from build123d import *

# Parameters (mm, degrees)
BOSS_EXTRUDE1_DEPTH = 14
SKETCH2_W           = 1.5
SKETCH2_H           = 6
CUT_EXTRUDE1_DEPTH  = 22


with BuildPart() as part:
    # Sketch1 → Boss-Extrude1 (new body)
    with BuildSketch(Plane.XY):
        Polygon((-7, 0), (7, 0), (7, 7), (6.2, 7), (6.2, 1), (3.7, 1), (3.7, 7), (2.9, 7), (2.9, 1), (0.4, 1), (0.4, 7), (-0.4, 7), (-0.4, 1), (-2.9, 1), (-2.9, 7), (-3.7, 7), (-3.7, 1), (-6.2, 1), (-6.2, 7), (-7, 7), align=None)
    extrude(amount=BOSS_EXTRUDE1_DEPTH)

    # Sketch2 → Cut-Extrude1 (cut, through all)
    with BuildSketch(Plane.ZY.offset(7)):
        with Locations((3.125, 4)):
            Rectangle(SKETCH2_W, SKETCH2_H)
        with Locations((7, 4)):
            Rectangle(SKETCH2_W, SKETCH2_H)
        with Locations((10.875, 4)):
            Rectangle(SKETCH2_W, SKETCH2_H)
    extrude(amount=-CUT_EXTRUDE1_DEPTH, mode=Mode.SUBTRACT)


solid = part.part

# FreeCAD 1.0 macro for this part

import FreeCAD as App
import Part
import Sketcher
from FreeCAD import Vector

doc = App.newDocument("Part")
params = doc.addObject("Spreadsheet::Sheet", "Params")
for row, (alias, value) in enumerate([
    ("sketch1_width", "14 mm"),
    ("sketch1_height", "7 mm"),
    ("sketch1_height2", "6 mm"),
    ("sketch1_width2", "0.8 mm"),
    ("pad1_length", "14 mm"),
    ("sketch2_width", "6 mm"),
    ("sketch2_height", "1.5 mm"),
], start=1):
    params.set(f"A{row}", alias)
    params.set(f"B{row}", "=" + value)
    params.setAlias(f"B{row}", alias)

body = doc.addObject("PartDesign::Body", "Body")

sketch1 = body.newObject("Sketcher::SketchObject", "Sketch")
sketch1.AttachmentSupport = (doc.getObject("XY_Plane"), [""])
sketch1.MapMode = "FlatFace"
sketch1.addGeometry([
    Part.LineSegment(Vector(-7, 0, 0), Vector(7, 0, 0)),
    Part.LineSegment(Vector(7, 0, 0), Vector(7, 7, 0)),
    Part.LineSegment(Vector(7, 7, 0), Vector(6.2, 7, 0)),
    Part.LineSegment(Vector(6.2, 7, 0), Vector(6.2, 1, 0)),
    Part.LineSegment(Vector(6.2, 1, 0), Vector(3.7, 1, 0)),
    Part.LineSegment(Vector(3.7, 1, 0), Vector(3.7, 7, 0)),
    Part.LineSegment(Vector(3.7, 7, 0), Vector(2.9, 7, 0)),
    Part.LineSegment(Vector(2.9, 7, 0), Vector(2.9, 1, 0)),
    Part.LineSegment(Vector(2.9, 1, 0), Vector(0.4, 1, 0)),
    Part.LineSegment(Vector(0.4, 1, 0), Vector(0.4, 7, 0)),
    Part.LineSegment(Vector(0.4, 7, 0), Vector(-0.4, 7, 0)),
    Part.LineSegment(Vector(-0.4, 7, 0), Vector(-0.4, 1, 0)),
    Part.LineSegment(Vector(-0.4, 1, 0), Vector(-2.9, 1, 0)),
    Part.LineSegment(Vector(-2.9, 1, 0), Vector(-2.9, 7, 0)),
    Part.LineSegment(Vector(-2.9, 7, 0), Vector(-3.7, 7, 0)),
    Part.LineSegment(Vector(-3.7, 7, 0), Vector(-3.7, 1, 0)),
    Part.LineSegment(Vector(-3.7, 1, 0), Vector(-6.2, 1, 0)),
    Part.LineSegment(Vector(-6.2, 1, 0), Vector(-6.2, 7, 0)),
    Part.LineSegment(Vector(-6.2, 7, 0), Vector(-7, 7, 0)),
    Part.LineSegment(Vector(-7, 7, 0), Vector(-7, 0, 0)),
], False)
sketch1.addConstraint([
    Sketcher.Constraint("Coincident", 0, 2, 1, 1),
    Sketcher.Constraint("Coincident", 1, 2, 2, 1),
    Sketcher.Constraint("Coincident", 2, 2, 3, 1),
    Sketcher.Constraint("Coincident", 3, 2, 4, 1),
    Sketcher.Constraint("Coincident", 4, 2, 5, 1),
    Sketcher.Constraint("Coincident", 5, 2, 6, 1),
    Sketcher.Constraint("Coincident", 6, 2, 7, 1),
    Sketcher.Constraint("Coincident", 7, 2, 8, 1),
    Sketcher.Constraint("Coincident", 8, 2, 9, 1),
    Sketcher.Constraint("Coincident", 9, 2, 10, 1),
    Sketcher.Constraint("Coincident", 10, 2, 11, 1),
    Sketcher.Constraint("Coincident", 11, 2, 12, 1),
    Sketcher.Constraint("Coincident", 12, 2, 13, 1),
    Sketcher.Constraint("Coincident", 13, 2, 14, 1),
    Sketcher.Constraint("Coincident", 14, 2, 15, 1),
    Sketcher.Constraint("Coincident", 15, 2, 16, 1),
    Sketcher.Constraint("Coincident", 16, 2, 17, 1),
    Sketcher.Constraint("Coincident", 17, 2, 18, 1),
    Sketcher.Constraint("Coincident", 18, 2, 19, 1),
    Sketcher.Constraint("Coincident", 19, 2, 0, 1),
    Sketcher.Constraint("Horizontal", 0),
    Sketcher.Constraint("Vertical", 1),
    Sketcher.Constraint("Horizontal", 2),
    Sketcher.Constraint("Vertical", 3),
    Sketcher.Constraint("Horizontal", 4),
    Sketcher.Constraint("Vertical", 5),
    Sketcher.Constraint("Horizontal", 6),
    Sketcher.Constraint("Vertical", 7),
    Sketcher.Constraint("Horizontal", 8),
    Sketcher.Constraint("Vertical", 9),
    Sketcher.Constraint("Horizontal", 10),
    Sketcher.Constraint("Vertical", 11),
    Sketcher.Constraint("Horizontal", 12),
    Sketcher.Constraint("Vertical", 13),
    Sketcher.Constraint("Horizontal", 14),
    Sketcher.Constraint("Vertical", 15),
    Sketcher.Constraint("Horizontal", 16),
    Sketcher.Constraint("Vertical", 17),
    Sketcher.Constraint("Horizontal", 18),
    Sketcher.Constraint("Vertical", 19),
    Sketcher.Constraint("Symmetric", 0, 2, 19, 2, -1, 1),
    Sketcher.Constraint("Symmetric", 8, 2, 11, 2, -2),
    Sketcher.Constraint("Symmetric", 6, 2, 13, 2, -2),
    Sketcher.Constraint("Symmetric", 4, 2, 15, 2, -2),
    Sketcher.Constraint("Symmetric", 2, 2, 17, 2, -2),
    Sketcher.Constraint("Horizontal", 2, 2, 5, 2),
    Sketcher.Constraint("Horizontal", 4, 2, 7, 2),
    Sketcher.Constraint("Horizontal", 6, 2, 9, 2),
    Sketcher.Constraint("Equal", 2, 6),
    Sketcher.Constraint("Equal", 4, 8),
    Sketcher.Constraint("Equal", 6, 10),
    Sketcher.Constraint("DistanceX", 0, 1, 0, 2, 14.0),
    Sketcher.Constraint("DistanceY", 1, 1, 1, 2, 7.0),
    Sketcher.Constraint("DistanceY", 3, 2, 3, 1, 6.0),
    Sketcher.Constraint("DistanceX", 2, 2, 2, 1, 0.8),
])
sketch1.setExpression("Constraints[51]", "Params.sketch1_width")
sketch1.setExpression("Constraints[52]", "Params.sketch1_height")
sketch1.setExpression("Constraints[53]", "Params.sketch1_height2")
sketch1.setExpression("Constraints[54]", "Params.sketch1_width2")
pad1 = body.newObject("PartDesign::Pad", "Pad")
pad1.Profile = sketch1
pad1.setExpression("Length", "Params.pad1_length")

sketch2 = body.newObject("Sketcher::SketchObject", "Sketch001")
sketch2.AttachmentSupport = (doc.getObject("YZ_Plane"), [""])
sketch2.MapMode = "FlatFace"
sketch2.AttachmentOffset = App.Placement(Vector(0, 0, -7), App.Rotation())
sketch2.addGeometry([
    Part.LineSegment(Vector(7, 2.4, 0), Vector(1, 2.4, 0)),
    Part.LineSegment(Vector(1, 2.4, 0), Vector(1, 3.9, 0)),
    Part.LineSegment(Vector(1, 3.9, 0), Vector(7, 3.9, 0)),
    Part.LineSegment(Vector(7, 3.9, 0), Vector(7, 2.4, 0)),
    Part.LineSegment(Vector(7, 6.2, 0), Vector(1, 6.2, 0)),
    Part.LineSegment(Vector(1, 6.2, 0), Vector(1, 7.8, 0)),
    Part.LineSegment(Vector(1, 7.8, 0), Vector(7, 7.8, 0)),
    Part.LineSegment(Vector(7, 7.8, 0), Vector(7, 6.2, 0)),
    Part.LineSegment(Vector(7, 10.1, 0), Vector(1, 10.1, 0)),
    Part.LineSegment(Vector(1, 10.1, 0), Vector(1, 11.6, 0)),
    Part.LineSegment(Vector(1, 11.6, 0), Vector(7, 11.6, 0)),
    Part.LineSegment(Vector(7, 11.6, 0), Vector(7, 10.1, 0)),
], False)
sketch2.addConstraint([
    Sketcher.Constraint("Coincident", 0, 2, 1, 1),
    Sketcher.Constraint("Coincident", 1, 2, 2, 1),
    Sketcher.Constraint("Coincident", 2, 2, 3, 1),
    Sketcher.Constraint("Coincident", 3, 2, 0, 1),
    Sketcher.Constraint("Coincident", 4, 2, 5, 1),
    Sketcher.Constraint("Coincident", 5, 2, 6, 1),
    Sketcher.Constraint("Coincident", 6, 2, 7, 1),
    Sketcher.Constraint("Coincident", 7, 2, 4, 1),
    Sketcher.Constraint("Coincident", 8, 2, 9, 1),
    Sketcher.Constraint("Coincident", 9, 2, 10, 1),
    Sketcher.Constraint("Coincident", 10, 2, 11, 1),
    Sketcher.Constraint("Coincident", 11, 2, 8, 1),
    Sketcher.Constraint("Horizontal", 0),
    Sketcher.Constraint("Vertical", 1),
    Sketcher.Constraint("Horizontal", 2),
    Sketcher.Constraint("Vertical", 3),
    Sketcher.Constraint("Horizontal", 4),
    Sketcher.Constraint("Vertical", 5),
    Sketcher.Constraint("Horizontal", 6),
    Sketcher.Constraint("Vertical", 7),
    Sketcher.Constraint("Horizontal", 8),
    Sketcher.Constraint("Vertical", 9),
    Sketcher.Constraint("Horizontal", 10),
    Sketcher.Constraint("Vertical", 11),
    Sketcher.Constraint("Vertical", 1, 2, 4, 2),
    Sketcher.Constraint("Vertical", 3, 2, 6, 2),
    Sketcher.Constraint("Vertical", 5, 2, 8, 2),
    Sketcher.Constraint("Vertical", 7, 2, 10, 2),
    Sketcher.Constraint("Equal", 3, 5),
    Sketcher.Constraint("Equal", 7, 9),
    Sketcher.Constraint("DistanceX", 0, 2, 0, 1, 6.0),
    Sketcher.Constraint("DistanceY", 1, 1, 1, 2, 1.5),
    Sketcher.Constraint("DistanceX", -1, 1, 0, 2, 1.0),
    Sketcher.Constraint("DistanceY", -1, 1, 4, 2, 6.25),
    Sketcher.Constraint("DistanceY", 1, 2, 8, 2, 6.25),
    Sketcher.Constraint("DistanceY", -1, 1, 0, 2, 2.375),
])
sketch2.setExpression("Constraints[30]", "Params.sketch2_width")
sketch2.setExpression("Constraints[31]", "Params.sketch2_height")
pocket1 = body.newObject("PartDesign::Pocket", "Pocket")
pocket1.Profile = sketch2
pocket1.Type = "ThroughAll"
pocket1.Reversed = True

doc.recompute()
